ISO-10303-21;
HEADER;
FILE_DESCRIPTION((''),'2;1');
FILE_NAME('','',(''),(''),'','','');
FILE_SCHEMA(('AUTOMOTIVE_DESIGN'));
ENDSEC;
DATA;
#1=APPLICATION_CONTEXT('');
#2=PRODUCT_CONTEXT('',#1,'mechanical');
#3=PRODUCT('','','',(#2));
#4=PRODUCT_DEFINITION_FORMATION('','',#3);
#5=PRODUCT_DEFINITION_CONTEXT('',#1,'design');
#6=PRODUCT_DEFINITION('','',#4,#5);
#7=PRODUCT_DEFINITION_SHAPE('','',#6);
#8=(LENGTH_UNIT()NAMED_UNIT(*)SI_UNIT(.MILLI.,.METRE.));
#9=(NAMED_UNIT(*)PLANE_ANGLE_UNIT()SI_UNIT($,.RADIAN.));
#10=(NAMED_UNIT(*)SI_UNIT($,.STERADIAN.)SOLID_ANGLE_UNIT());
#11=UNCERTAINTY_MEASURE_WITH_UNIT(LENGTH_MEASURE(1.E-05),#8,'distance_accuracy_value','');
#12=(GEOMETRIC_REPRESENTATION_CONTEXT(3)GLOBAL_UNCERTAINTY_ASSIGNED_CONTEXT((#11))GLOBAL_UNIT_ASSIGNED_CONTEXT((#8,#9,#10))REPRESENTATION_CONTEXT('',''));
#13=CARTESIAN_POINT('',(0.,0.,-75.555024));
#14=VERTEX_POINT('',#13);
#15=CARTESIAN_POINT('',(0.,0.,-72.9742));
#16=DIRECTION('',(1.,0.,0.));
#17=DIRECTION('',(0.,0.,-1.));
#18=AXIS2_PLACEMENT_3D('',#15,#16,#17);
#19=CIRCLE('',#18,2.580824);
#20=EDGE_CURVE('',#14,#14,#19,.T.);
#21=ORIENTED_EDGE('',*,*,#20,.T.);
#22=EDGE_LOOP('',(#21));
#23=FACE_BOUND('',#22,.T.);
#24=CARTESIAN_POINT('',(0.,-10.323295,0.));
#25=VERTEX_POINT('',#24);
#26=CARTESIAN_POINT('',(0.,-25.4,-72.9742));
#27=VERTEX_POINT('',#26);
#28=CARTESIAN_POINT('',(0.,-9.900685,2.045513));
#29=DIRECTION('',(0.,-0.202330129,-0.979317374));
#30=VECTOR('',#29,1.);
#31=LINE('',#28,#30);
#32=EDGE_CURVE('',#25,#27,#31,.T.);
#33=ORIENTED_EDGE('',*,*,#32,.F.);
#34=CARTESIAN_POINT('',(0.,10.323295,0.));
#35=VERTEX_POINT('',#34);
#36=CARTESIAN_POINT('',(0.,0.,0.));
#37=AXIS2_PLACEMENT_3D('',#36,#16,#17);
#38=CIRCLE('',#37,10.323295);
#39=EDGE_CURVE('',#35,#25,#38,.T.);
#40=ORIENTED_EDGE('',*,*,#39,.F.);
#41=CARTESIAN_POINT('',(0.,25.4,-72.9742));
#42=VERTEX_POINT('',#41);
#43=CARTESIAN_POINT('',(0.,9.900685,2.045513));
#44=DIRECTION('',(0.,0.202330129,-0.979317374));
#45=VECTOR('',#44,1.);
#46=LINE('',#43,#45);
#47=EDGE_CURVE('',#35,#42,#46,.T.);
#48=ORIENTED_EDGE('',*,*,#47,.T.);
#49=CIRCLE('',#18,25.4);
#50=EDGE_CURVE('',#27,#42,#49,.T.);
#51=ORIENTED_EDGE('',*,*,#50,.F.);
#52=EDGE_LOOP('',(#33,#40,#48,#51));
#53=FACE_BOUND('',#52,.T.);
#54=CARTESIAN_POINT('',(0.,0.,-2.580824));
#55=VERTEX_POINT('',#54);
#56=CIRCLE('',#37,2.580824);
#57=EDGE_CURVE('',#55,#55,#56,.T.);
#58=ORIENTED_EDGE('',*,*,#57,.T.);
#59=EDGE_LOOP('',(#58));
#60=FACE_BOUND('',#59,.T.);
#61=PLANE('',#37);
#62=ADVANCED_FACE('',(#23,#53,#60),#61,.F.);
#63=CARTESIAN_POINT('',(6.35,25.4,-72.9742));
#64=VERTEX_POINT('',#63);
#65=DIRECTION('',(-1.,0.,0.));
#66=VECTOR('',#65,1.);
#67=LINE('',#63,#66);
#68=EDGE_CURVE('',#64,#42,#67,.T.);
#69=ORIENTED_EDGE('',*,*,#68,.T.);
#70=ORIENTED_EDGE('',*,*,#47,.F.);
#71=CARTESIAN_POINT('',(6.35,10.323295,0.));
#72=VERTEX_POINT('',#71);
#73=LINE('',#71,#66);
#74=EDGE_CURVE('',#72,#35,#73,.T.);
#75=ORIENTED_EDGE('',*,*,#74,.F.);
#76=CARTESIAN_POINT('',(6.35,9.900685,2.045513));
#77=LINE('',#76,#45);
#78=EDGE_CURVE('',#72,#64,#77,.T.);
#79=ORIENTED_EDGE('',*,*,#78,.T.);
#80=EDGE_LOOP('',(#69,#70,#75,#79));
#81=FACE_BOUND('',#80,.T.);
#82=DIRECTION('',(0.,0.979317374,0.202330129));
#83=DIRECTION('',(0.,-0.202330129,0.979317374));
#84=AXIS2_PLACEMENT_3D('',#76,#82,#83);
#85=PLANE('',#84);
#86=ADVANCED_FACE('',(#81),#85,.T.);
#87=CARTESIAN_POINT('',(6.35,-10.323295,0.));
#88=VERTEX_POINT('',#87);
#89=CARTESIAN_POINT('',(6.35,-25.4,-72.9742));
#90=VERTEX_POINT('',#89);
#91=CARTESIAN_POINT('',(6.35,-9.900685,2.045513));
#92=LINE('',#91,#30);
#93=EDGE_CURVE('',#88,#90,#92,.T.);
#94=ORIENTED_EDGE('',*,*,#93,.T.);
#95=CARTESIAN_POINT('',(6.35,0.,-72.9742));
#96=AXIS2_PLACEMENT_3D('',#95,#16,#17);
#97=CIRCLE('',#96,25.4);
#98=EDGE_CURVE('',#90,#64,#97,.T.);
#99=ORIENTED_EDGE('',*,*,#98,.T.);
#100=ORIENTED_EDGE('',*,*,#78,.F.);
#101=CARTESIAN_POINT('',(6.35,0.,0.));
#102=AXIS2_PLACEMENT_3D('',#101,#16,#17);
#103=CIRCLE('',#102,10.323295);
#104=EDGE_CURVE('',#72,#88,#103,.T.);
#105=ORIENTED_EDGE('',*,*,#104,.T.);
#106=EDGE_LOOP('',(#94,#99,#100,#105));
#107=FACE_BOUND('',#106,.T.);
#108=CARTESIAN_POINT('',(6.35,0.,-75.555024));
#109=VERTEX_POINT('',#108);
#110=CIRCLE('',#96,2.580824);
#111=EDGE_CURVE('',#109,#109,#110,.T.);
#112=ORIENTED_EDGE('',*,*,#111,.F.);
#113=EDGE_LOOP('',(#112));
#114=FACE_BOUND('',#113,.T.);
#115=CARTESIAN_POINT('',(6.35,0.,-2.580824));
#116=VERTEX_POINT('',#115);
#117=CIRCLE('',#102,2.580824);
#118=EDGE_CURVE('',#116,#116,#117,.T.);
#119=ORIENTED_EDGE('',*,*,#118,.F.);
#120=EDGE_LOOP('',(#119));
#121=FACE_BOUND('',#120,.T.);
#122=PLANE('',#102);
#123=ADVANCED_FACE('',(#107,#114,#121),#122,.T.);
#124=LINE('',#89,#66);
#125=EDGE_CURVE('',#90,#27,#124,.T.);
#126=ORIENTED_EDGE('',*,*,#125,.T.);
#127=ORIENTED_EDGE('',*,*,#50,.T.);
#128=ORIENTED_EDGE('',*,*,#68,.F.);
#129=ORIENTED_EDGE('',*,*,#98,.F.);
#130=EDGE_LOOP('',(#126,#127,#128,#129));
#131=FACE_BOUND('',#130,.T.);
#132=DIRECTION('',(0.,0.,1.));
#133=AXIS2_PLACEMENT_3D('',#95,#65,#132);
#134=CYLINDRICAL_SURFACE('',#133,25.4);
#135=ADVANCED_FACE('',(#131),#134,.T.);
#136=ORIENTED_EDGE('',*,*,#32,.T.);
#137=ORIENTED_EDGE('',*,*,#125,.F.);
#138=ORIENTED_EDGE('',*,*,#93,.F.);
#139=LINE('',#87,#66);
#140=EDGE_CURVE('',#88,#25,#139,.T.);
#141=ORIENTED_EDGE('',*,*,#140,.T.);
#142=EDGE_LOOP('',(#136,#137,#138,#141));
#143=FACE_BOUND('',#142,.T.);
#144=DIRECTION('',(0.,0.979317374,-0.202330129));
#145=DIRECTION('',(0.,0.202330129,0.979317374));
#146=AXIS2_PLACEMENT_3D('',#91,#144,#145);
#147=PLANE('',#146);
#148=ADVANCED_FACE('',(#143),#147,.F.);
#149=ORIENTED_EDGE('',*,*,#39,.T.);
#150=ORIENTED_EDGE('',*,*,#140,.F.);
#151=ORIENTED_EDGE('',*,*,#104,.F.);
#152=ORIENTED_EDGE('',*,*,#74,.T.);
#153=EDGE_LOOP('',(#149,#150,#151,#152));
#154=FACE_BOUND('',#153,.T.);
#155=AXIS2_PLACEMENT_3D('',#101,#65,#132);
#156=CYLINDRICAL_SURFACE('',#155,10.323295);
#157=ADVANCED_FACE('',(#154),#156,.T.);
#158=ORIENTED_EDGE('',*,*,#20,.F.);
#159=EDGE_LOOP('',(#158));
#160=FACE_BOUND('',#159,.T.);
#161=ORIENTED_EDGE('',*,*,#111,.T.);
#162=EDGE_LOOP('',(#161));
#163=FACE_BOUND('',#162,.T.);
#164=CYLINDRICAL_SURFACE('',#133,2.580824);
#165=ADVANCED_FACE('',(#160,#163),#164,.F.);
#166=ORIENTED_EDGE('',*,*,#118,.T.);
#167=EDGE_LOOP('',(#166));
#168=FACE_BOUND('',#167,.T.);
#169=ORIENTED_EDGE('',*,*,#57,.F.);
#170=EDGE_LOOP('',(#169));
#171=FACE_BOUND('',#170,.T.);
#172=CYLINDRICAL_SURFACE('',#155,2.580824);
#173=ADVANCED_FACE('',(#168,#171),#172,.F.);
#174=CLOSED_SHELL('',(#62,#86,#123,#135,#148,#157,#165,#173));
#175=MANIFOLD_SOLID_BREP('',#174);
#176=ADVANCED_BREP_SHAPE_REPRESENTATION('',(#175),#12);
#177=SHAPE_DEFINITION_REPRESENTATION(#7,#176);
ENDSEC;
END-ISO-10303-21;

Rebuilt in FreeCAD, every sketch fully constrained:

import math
import FreeCAD as App
import Part
import Sketcher

V = App.Vector
Q = App.Units.Quantity

doc = App.newDocument("Part")
params = doc.addObject("Spreadsheet::Sheet", "Params")
for row, (alias, value) in enumerate([
    ("sketch1_radius", "1 in"),
    ("pad1_length", "0.25 in"),
], start=1):
    params.set(f"A{row}", alias)
    params.set(f"B{row}", "=" + value)
    params.setAlias(f"B{row}", alias)

body = doc.addObject("PartDesign::Body", "Body")

# Sketch on YZ plane
sketch1 = doc.addObject("Sketcher::SketchObject", "Sketch")
body.addObject(sketch1)
sketch1.AttachmentSupport = (doc.YZ_Plane, [""])
sketch1.MapMode = "FlatFace"
sketch1.addGeometry(Part.ArcOfCircle(Part.Circle(V(0, 0, 0), V(0, 0, 1), 10.3), math.radians(0), math.radians(180)), False)
sketch1.addGeometry(Part.LineSegment(V(-10.3, 0, 0), V(-25.4, -73, 0)), False)
sketch1.addGeometry(Part.ArcOfCircle(Part.Circle(V(0, -73, 0), V(0, 0, 1), 25.4), math.radians(180), math.radians(360)), False)
sketch1.addGeometry(Part.LineSegment(V(25.4, -73, 0), V(10.3, 0, 0)), False)
sketch1.addGeometry(Part.Circle(V(0, 0, 0), V(0, 0, 1), 2.6), False)
sketch1.addGeometry(Part.Circle(V(0, -73, 0), V(0, 0, 1), 2.6), False)
sketch1.addConstraint(Sketcher.Constraint("Coincident", 0, 2, 1, 1))
sketch1.addConstraint(Sketcher.Constraint("Coincident", 1, 2, 2, 1))
sketch1.addConstraint(Sketcher.Constraint("Coincident", 2, 2, 3, 1))
sketch1.addConstraint(Sketcher.Constraint("Coincident", 3, 2, 0, 1))
sketch1.addConstraint(Sketcher.Constraint("Coincident", 0, 3, -1, 1))
sketch1.addConstraint(Sketcher.Constraint("Coincident", 4, 3, -1, 1))
sketch1.addConstraint(Sketcher.Constraint("Coincident", 5, 3, 2, 3))
sketch1.addConstraint(Sketcher.Constraint("Equal", 4, 5))
sketch1.addConstraint(Sketcher.Constraint("Symmetric", 1, 2, 2, 2, -2))
sketch1.addConstraint(Sketcher.Constraint("PointOnObject", 0, 2, -1))
sketch1.addConstraint(Sketcher.Constraint("PointOnObject", 3, 2, -1))
sketch1.addConstraint(Sketcher.Constraint("Horizontal", 5, 3, 1, 2))
sketch1.addConstraint(Sketcher.Constraint("Radius", 2, Q("1 in")))
sketch1.addConstraint(Sketcher.Constraint("DistanceY", 2, 3, -1, 1, Q("2.873 in")))
sketch1.addConstraint(Sketcher.Constraint("Diameter", 4, Q("5.161647 mm")))
sketch1.addConstraint(Sketcher.Constraint("Radius", 0, Q("10.323295 mm")))
sketch1.setExpression("Constraints[12]", "Params.sketch1_radius")
pad1 = doc.addObject("PartDesign::Pad", "Pad")
body.addObject(pad1)
pad1.Profile = sketch1
pad1.setExpression("Length", "Params.pad1_length")

doc.recompute()
